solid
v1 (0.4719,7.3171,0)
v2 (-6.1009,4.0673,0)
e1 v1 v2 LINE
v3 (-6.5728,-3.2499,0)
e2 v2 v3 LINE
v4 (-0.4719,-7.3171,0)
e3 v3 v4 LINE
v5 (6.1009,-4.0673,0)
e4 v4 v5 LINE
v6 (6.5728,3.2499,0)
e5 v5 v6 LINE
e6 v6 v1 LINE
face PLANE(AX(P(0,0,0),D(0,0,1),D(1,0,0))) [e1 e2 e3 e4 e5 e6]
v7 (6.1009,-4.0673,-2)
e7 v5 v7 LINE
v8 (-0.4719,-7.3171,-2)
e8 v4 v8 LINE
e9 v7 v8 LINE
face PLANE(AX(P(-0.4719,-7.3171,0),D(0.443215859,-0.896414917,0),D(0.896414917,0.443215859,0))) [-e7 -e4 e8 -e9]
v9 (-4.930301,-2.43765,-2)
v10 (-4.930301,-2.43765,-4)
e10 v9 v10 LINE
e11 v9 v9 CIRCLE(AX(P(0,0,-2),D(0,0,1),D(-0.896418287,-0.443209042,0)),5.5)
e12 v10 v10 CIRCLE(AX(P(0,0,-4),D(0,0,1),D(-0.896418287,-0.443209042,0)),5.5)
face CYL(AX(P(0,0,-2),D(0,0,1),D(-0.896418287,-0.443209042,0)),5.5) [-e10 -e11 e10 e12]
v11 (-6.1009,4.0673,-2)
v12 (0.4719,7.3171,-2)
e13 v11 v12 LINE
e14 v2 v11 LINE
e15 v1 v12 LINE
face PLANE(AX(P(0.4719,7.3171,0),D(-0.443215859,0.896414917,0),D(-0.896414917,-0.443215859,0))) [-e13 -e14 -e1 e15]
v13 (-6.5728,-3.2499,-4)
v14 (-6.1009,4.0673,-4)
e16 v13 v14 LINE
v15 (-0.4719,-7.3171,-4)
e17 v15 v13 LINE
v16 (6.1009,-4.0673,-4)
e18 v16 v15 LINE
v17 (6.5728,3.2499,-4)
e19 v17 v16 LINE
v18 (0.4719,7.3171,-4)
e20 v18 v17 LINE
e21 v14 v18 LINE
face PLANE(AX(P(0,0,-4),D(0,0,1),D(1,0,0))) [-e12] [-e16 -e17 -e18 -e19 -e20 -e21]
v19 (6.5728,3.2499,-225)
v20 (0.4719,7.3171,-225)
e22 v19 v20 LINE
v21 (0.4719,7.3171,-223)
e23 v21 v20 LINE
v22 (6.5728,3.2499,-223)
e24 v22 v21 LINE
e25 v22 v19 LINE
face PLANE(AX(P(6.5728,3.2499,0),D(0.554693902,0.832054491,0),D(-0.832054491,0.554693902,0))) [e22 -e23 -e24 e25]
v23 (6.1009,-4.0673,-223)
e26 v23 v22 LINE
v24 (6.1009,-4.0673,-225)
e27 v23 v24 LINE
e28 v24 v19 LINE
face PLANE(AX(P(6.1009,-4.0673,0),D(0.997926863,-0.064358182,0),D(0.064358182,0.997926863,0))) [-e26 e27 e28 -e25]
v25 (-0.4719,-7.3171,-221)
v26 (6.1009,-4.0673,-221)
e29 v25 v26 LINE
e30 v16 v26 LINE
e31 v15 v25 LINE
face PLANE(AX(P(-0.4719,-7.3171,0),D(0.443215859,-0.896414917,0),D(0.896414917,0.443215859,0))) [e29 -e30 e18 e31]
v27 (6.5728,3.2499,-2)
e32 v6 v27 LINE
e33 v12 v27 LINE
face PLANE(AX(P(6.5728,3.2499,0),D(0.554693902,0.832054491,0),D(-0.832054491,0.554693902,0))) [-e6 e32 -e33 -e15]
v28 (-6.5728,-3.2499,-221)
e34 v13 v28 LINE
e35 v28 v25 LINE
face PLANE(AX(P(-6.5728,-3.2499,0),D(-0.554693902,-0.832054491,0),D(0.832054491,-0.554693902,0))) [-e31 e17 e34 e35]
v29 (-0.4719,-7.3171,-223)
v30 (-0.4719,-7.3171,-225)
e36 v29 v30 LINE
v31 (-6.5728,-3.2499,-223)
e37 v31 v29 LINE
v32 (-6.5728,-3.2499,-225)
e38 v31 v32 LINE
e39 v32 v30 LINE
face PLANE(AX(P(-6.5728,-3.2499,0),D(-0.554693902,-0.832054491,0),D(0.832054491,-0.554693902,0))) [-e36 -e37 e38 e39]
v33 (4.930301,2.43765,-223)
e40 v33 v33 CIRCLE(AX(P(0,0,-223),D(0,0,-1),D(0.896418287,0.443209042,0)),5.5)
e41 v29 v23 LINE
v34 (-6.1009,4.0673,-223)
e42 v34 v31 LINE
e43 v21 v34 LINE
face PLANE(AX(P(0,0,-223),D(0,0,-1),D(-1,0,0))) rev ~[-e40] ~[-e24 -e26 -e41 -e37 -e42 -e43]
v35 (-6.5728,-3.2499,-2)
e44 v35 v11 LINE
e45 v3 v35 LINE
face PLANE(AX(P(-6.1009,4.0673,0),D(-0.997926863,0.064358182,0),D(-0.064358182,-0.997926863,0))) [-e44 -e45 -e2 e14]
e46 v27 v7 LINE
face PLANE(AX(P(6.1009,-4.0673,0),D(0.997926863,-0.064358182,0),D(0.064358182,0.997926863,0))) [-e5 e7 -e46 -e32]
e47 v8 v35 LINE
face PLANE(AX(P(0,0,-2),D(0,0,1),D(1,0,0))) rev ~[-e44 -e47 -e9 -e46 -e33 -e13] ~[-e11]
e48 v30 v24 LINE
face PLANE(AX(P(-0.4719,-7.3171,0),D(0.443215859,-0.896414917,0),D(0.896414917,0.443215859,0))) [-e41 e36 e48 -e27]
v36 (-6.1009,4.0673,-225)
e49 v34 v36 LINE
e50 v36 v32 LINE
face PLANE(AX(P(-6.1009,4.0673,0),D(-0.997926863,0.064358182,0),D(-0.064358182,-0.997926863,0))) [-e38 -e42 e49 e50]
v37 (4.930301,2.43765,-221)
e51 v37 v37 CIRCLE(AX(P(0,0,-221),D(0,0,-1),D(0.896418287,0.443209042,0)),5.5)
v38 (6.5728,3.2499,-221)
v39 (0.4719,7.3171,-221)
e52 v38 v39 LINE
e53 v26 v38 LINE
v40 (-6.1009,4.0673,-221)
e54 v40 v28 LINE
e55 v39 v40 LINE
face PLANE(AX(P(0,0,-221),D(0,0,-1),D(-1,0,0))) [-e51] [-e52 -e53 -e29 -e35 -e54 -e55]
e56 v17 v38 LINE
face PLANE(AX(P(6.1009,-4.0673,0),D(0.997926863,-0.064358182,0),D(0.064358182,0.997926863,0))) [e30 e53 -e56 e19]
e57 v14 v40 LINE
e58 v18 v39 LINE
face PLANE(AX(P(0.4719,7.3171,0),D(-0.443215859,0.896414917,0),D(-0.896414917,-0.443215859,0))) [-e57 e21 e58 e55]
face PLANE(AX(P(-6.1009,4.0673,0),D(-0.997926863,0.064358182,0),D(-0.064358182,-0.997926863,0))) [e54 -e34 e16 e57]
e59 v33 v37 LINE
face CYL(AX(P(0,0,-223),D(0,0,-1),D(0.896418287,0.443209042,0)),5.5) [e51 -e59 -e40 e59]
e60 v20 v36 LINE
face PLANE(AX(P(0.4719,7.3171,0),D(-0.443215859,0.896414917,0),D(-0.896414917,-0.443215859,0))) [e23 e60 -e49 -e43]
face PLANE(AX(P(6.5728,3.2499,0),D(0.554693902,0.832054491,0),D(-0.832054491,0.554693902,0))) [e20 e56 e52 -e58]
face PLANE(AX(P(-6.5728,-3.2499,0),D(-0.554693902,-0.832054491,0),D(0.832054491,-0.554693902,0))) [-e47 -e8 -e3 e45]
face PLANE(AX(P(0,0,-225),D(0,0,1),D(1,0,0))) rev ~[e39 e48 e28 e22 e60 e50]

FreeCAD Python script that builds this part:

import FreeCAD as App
import Part
import Sketcher

V = App.Vector
Q = App.Units.Quantity


def add_polygon(sketch, points):
    """Adds a closed chain of lines whose ends are joined by coincident constraints."""
    first, n = sketch.GeometryCount, len(points)
    for a, b in zip(points, points[1:] + points[:1]):
        sketch.addGeometry(Part.LineSegment(App.Vector(*a, 0), App.Vector(*b, 0)), False)
    for i in range(n):
        sketch.addConstraint(Sketcher.Constraint("Coincident", first + i, 2, first + (i + 1) % n, 1))

doc = App.newDocument("Part")
body = doc.addObject("PartDesign::Body", "Body")

# Sketch on XY plane
sketch1 = body.newObject("Sketcher::SketchObject", "Sketch")
sketch1.AttachmentSupport = (doc.getObject("XY_Plane"), [""])
sketch1.MapMode = "FlatFace"
add_polygon(sketch1, [(0, 7), (-6, 4), (-7, -3), (0, -7), (6, -4), (7, 3)])  # lines 0-5
sketch1.addConstraint([
    Sketcher.Constraint("Symmetric", 0, 2, 3, 2, -1, 1),
    Sketcher.Constraint("Symmetric", 1, 2, 4, 2, -1, 1),
    Sketcher.Constraint("Symmetric", 2, 2, 5, 2, -1, 1),
    Sketcher.Constraint("Equal", 0, 1),
    Sketcher.Constraint("Equal", 1, 2),
    Sketcher.Constraint("Angle", 0, Q("-153.6908 deg")),
    Sketcher.Constraint("Angle", 1, Q("-93.69 deg")),
    Sketcher.Constraint("Angle", 2, Q("-33.6896 deg")),
    Sketcher.Constraint("DistanceY", 1, 2, -1, 1, 3.25),
])
pad1 = body.newObject("PartDesign::Pad", "Pad")
pad1.Profile = sketch1
pad1.Length = 225
pad1.Reversed = True

# Sketch on XY plane
sketch2 = body.newObject("Sketcher::SketchObject", "Sketch001")
sketch2.AttachmentSupport = (doc.getObject("XY_Plane"), [""])
sketch2.MapMode = "FlatFace"
sketch2.AttachmentOffset = App.Placement(V(0, 0, -2), App.Rotation())
sketch2.addGeometry([
    Part.Circle(V(0, 0, 0), V(0, 0, 1), 13),
    Part.Circle(V(0, 0, 0), V(0, 0, 1), 6),
], False)
sketch2.addConstraint([
    Sketcher.Constraint("Coincident", 0, 3, -1, 1),
    Sketcher.Constraint("Coincident", 1, 3, -1, 1),
    Sketcher.Constraint("Diameter", 1, 11.0),
    Sketcher.Constraint("Diameter", 0, 26.2848),
])
pocket1 = body.newObject("PartDesign::Pocket", "Pocket")
pocket1.Profile = sketch2
pocket1.Length = 2

# Sketch on XY plane
sketch3 = body.newObject("Sketcher::SketchObject", "Sketch002")
sketch3.AttachmentSupport = (doc.getObject("XY_Plane"), [""])
sketch3.MapMode = "FlatFace"
sketch3.AttachmentOffset = App.Placement(V(0, 0, -223), App.Rotation())
sketch3.addGeometry([
    Part.Circle(V(0, 0, 0), V(0, 0, 1), 13),
    Part.Circle(V(0, 0, 0), V(0, 0, 1), 6),
], False)
sketch3.addConstraint([
    Sketcher.Constraint("Coincident", 0, 3, -1, 1),
    Sketcher.Constraint("Coincident", 1, 3, -1, 1),
    Sketcher.Constraint("Diameter", 1, 11.0),
    Sketcher.Constraint("Diameter", 0, 26.2848),
])
pocket2 = body.newObject("PartDesign::Pocket", "Pocket001")
pocket2.Profile = sketch3
pocket2.Length = 2
pocket2.Reversed = True

doc.recompute()
